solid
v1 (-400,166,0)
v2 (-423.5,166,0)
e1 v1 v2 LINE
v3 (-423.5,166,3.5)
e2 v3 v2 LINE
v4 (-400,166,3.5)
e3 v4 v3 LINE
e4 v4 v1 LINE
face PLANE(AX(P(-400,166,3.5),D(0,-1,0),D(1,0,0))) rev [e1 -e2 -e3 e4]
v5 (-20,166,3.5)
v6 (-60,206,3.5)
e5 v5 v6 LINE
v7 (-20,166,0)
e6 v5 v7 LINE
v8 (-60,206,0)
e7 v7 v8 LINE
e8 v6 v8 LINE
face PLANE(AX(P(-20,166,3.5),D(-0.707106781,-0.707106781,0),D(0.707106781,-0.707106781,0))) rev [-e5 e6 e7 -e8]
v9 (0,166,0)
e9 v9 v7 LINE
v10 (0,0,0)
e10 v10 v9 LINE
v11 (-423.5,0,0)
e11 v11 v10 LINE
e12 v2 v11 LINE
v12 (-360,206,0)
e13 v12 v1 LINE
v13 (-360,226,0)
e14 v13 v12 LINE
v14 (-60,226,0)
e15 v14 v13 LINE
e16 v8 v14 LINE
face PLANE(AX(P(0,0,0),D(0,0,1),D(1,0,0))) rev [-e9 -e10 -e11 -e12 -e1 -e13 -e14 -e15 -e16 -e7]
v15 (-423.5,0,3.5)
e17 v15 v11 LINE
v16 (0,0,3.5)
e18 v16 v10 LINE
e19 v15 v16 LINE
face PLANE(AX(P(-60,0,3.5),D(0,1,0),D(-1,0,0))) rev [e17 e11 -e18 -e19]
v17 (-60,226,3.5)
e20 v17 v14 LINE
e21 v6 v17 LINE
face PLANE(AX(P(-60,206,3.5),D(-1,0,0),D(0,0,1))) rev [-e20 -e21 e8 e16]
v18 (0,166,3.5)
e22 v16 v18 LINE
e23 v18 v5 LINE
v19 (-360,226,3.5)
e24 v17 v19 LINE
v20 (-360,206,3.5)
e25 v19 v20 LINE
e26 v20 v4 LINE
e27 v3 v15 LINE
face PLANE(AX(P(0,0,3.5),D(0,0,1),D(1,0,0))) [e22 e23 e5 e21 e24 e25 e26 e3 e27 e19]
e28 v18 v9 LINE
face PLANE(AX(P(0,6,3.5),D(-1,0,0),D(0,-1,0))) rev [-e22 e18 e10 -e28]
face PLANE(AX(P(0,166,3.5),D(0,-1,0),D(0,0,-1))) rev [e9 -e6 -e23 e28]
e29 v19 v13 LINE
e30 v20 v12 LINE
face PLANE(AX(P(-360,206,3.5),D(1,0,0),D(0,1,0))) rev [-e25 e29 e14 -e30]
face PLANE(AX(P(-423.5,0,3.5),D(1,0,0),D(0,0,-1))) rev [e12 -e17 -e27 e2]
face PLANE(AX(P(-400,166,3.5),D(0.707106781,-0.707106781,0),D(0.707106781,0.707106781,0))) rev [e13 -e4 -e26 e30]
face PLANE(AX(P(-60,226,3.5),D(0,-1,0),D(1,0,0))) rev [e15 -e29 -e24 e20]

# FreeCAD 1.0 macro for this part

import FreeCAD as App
import Part
import Sketcher


def add_polygon(sketch, points):
    """Adds a closed chain of lines whose ends are joined by coincident constraints."""
    first, n = sketch.GeometryCount, len(points)
    for a, b in zip(points, points[1:] + points[:1]):
        sketch.addGeometry(Part.LineSegment(App.Vector(*a, 0), App.Vector(*b, 0)), False)
    for i in range(n):
        sketch.addConstraint(Sketcher.Constraint("Coincident", first + i, 2, first + (i + 1) % n, 1))

doc = App.newDocument("Part")
body = doc.addObject("PartDesign::Body", "Body")

# Sketch on XY plane
sketch1 = body.newObject("Sketcher::SketchObject", "Sketch")
sketch1.AttachmentSupport = (doc.getObject("XY_Plane"), [""])
sketch1.MapMode = "FlatFace"
add_polygon(sketch1, [(-424, 0), (0, 0), (0, 166), (-20, 166), (-60, 206), (-60, 226), (-360, 226), (-360, 206), (-400, 166), (-424, 166)])  # lines 0-9
sketch1.addConstraint([
    Sketcher.Constraint("Horizontal", 0),
    Sketcher.Constraint("Vertical", 1),
    Sketcher.Constraint("Horizontal", 2),
    Sketcher.Constraint("Vertical", 4),
    Sketcher.Constraint("Horizontal", 5),
    Sketcher.Constraint("Vertical", 6),
    Sketcher.Constraint("Horizontal", 8),
    Sketcher.Constraint("Vertical", 9),
    Sketcher.Constraint("Coincident", 0, 2, -1, 1),
    Sketcher.Constraint("Perpendicular", 3, 7),
    Sketcher.Constraint("Horizontal", 3, 2, 6, 2),
    Sketcher.Constraint("Horizontal", 2, 2, 7, 2),
    Sketcher.Constraint("Equal", 2, 4),
    Sketcher.Constraint("Equal", 3, 7),
    Sketcher.Constraint("DistanceX", 2, 2, 2, 1, 20.0),
    Sketcher.Constraint("DistanceX", 5, 2, 5, 1, 300.0),
    Sketcher.Constraint("DistanceY", 1, 1, 1, 2, 166.0),
    Sketcher.Constraint("DistanceX", 0, 1, 0, 2, 423.5),
    Sketcher.Constraint("DistanceX", 8, 2, 8, 1, 23.5),
])
pad1 = body.newObject("PartDesign::Pad", "Pad")
pad1.Profile = sketch1
pad1.Length = 3.5

doc.recompute()
